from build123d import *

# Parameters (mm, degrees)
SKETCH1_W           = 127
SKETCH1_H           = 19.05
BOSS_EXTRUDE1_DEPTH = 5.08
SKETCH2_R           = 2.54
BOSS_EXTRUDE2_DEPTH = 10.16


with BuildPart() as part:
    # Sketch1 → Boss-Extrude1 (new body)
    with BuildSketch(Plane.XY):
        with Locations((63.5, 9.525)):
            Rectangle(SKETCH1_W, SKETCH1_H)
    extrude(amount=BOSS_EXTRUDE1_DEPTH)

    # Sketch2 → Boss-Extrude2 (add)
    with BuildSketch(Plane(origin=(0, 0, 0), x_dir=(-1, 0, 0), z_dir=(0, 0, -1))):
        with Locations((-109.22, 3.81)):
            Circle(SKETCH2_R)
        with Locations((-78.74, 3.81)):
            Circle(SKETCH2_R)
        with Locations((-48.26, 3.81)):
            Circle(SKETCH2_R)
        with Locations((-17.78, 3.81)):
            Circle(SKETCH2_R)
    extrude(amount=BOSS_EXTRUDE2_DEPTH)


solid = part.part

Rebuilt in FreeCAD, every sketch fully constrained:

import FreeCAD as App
import Part
import Sketcher

V = App.Vector
Q = App.Units.Quantity

doc = App.newDocument("Part")
params = doc.addObject("Spreadsheet::Sheet", "Params")
for row, (alias, value) in enumerate([
    ("sketch1_width", "5 in"),
    ("sketch1_height", "0.75 in"),
    ("pad1_length", "0.2 in"),
    ("sketch2_diameter", "0.2 in"),
    ("pad2_length", "0.4 in"),
], start=1):
    params.set(f"A{row}", alias)
    params.set(f"B{row}", "=" + value)
    params.setAlias(f"B{row}", alias)

body = doc.addObject("PartDesign::Body", "Body")

sketch1 = doc.addObject("Sketcher::SketchObject", "Sketch")
body.addObject(sketch1)
sketch1.AttachmentSupport = (doc.XY_Plane, [""])
sketch1.MapMode = "FlatFace"
sketch1.addGeometry(Part.LineSegment(V(0, 19.05, 0), V(0, 0, 0)), False)
sketch1.addGeometry(Part.LineSegment(V(0, 0, 0), V(127, 0, 0)), False)
sketch1.addGeometry(Part.LineSegment(V(127, 0, 0), V(127, 19.05, 0)), False)
sketch1.addGeometry(Part.LineSegment(V(127, 19.05, 0), V(0, 19.05, 0)), False)
sketch1.addConstraint(Sketcher.Constraint("Coincident", 0, 2, 1, 1))
sketch1.addConstraint(Sketcher.Constraint("Coincident", 1, 2, 2, 1))
sketch1.addConstraint(Sketcher.Constraint("Coincident", 2, 2, 3, 1))
sketch1.addConstraint(Sketcher.Constraint("Coincident", 3, 2, 0, 1))
sketch1.addConstraint(Sketcher.Constraint("Vertical", 0))
sketch1.addConstraint(Sketcher.Constraint("Horizontal", 1))
sketch1.addConstraint(Sketcher.Constraint("Vertical", 2))
sketch1.addConstraint(Sketcher.Constraint("Horizontal", 3))
sketch1.addConstraint(Sketcher.Constraint("Coincident", 0, 2, -1, 1))
sketch1.addConstraint(Sketcher.Constraint("DistanceX", 1, 1, 1, 2, Q("5 in")))
sketch1.addConstraint(Sketcher.Constraint("DistanceY", 0, 2, 0, 1, Q("0.75 in")))
sketch1.setExpression("Constraints[9]", "Params.sketch1_width")
sketch1.setExpression("Constraints[10]", "Params.sketch1_height")
pad1 = doc.addObject("PartDesign::Pad", "Pad")
body.addObject(pad1)
pad1.Profile = sketch1
pad1.setExpression("Length", "Params.pad1_length")

sketch2 = doc.addObject("Sketcher::SketchObject", "Sketch001")
body.addObject(sketch2)
sketch2.AttachmentSupport = (doc.XY_Plane, [""])
sketch2.MapMode = "FlatFace"
sketch2.addGeometry(Part.Circle(V(109.22, 3.81, 0), V(0, 0, 1), 2.54), False)
sketch2.addGeometry(Part.Circle(V(78.74, 3.81, 0), V(0, 0, 1), 2.54), False)
sketch2.addGeometry(Part.Circle(V(48.26, 3.81, 0), V(0, 0, 1), 2.54), False)
sketch2.addGeometry(Part.Circle(V(17.78, 3.81, 0), V(0, 0, 1), 2.54), False)
sketch2.addConstraint(Sketcher.Constraint("Equal", 0, 1))
sketch2.addConstraint(Sketcher.Constraint("Equal", 1, 2))
sketch2.addConstraint(Sketcher.Constraint("Equal", 2, 3))
sketch2.addConstraint(Sketcher.Constraint("Horizontal", 0, 3, 1, 3))
sketch2.addConstraint(Sketcher.Constraint("Horizontal", 1, 3, 2, 3))
sketch2.addConstraint(Sketcher.Constraint("Horizontal", 2, 3, 3, 3))
sketch2.addConstraint(Sketcher.Constraint("Diameter", 0, Q("0.2 in")))
sketch2.addConstraint(Sketcher.Constraint("DistanceX", -1, 1, 0, 3, Q("4.3 in")))
sketch2.addConstraint(Sketcher.Constraint("DistanceX", -1, 1, 1, 3, Q("3.1 in")))
sketch2.addConstraint(Sketcher.Constraint("DistanceX", -1, 1, 2, 3, Q("1.9 in")))
sketch2.addConstraint(Sketcher.Constraint("DistanceX", -1, 1, 3, 3, Q("0.7 in")))
sketch2.addConstraint(Sketcher.Constraint("DistanceY", -1, 1, 0, 3, Q("0.15 in")))
sketch2.setExpression("Constraints[6]", "Params.sketch2_diameter")
pad2 = doc.addObject("PartDesign::Pad", "Pad001")
body.addObject(pad2)
pad2.Profile = sketch2
pad2.setExpression("Length", "Params.pad2_length")
pad2.Reversed = True

doc.recompute()
